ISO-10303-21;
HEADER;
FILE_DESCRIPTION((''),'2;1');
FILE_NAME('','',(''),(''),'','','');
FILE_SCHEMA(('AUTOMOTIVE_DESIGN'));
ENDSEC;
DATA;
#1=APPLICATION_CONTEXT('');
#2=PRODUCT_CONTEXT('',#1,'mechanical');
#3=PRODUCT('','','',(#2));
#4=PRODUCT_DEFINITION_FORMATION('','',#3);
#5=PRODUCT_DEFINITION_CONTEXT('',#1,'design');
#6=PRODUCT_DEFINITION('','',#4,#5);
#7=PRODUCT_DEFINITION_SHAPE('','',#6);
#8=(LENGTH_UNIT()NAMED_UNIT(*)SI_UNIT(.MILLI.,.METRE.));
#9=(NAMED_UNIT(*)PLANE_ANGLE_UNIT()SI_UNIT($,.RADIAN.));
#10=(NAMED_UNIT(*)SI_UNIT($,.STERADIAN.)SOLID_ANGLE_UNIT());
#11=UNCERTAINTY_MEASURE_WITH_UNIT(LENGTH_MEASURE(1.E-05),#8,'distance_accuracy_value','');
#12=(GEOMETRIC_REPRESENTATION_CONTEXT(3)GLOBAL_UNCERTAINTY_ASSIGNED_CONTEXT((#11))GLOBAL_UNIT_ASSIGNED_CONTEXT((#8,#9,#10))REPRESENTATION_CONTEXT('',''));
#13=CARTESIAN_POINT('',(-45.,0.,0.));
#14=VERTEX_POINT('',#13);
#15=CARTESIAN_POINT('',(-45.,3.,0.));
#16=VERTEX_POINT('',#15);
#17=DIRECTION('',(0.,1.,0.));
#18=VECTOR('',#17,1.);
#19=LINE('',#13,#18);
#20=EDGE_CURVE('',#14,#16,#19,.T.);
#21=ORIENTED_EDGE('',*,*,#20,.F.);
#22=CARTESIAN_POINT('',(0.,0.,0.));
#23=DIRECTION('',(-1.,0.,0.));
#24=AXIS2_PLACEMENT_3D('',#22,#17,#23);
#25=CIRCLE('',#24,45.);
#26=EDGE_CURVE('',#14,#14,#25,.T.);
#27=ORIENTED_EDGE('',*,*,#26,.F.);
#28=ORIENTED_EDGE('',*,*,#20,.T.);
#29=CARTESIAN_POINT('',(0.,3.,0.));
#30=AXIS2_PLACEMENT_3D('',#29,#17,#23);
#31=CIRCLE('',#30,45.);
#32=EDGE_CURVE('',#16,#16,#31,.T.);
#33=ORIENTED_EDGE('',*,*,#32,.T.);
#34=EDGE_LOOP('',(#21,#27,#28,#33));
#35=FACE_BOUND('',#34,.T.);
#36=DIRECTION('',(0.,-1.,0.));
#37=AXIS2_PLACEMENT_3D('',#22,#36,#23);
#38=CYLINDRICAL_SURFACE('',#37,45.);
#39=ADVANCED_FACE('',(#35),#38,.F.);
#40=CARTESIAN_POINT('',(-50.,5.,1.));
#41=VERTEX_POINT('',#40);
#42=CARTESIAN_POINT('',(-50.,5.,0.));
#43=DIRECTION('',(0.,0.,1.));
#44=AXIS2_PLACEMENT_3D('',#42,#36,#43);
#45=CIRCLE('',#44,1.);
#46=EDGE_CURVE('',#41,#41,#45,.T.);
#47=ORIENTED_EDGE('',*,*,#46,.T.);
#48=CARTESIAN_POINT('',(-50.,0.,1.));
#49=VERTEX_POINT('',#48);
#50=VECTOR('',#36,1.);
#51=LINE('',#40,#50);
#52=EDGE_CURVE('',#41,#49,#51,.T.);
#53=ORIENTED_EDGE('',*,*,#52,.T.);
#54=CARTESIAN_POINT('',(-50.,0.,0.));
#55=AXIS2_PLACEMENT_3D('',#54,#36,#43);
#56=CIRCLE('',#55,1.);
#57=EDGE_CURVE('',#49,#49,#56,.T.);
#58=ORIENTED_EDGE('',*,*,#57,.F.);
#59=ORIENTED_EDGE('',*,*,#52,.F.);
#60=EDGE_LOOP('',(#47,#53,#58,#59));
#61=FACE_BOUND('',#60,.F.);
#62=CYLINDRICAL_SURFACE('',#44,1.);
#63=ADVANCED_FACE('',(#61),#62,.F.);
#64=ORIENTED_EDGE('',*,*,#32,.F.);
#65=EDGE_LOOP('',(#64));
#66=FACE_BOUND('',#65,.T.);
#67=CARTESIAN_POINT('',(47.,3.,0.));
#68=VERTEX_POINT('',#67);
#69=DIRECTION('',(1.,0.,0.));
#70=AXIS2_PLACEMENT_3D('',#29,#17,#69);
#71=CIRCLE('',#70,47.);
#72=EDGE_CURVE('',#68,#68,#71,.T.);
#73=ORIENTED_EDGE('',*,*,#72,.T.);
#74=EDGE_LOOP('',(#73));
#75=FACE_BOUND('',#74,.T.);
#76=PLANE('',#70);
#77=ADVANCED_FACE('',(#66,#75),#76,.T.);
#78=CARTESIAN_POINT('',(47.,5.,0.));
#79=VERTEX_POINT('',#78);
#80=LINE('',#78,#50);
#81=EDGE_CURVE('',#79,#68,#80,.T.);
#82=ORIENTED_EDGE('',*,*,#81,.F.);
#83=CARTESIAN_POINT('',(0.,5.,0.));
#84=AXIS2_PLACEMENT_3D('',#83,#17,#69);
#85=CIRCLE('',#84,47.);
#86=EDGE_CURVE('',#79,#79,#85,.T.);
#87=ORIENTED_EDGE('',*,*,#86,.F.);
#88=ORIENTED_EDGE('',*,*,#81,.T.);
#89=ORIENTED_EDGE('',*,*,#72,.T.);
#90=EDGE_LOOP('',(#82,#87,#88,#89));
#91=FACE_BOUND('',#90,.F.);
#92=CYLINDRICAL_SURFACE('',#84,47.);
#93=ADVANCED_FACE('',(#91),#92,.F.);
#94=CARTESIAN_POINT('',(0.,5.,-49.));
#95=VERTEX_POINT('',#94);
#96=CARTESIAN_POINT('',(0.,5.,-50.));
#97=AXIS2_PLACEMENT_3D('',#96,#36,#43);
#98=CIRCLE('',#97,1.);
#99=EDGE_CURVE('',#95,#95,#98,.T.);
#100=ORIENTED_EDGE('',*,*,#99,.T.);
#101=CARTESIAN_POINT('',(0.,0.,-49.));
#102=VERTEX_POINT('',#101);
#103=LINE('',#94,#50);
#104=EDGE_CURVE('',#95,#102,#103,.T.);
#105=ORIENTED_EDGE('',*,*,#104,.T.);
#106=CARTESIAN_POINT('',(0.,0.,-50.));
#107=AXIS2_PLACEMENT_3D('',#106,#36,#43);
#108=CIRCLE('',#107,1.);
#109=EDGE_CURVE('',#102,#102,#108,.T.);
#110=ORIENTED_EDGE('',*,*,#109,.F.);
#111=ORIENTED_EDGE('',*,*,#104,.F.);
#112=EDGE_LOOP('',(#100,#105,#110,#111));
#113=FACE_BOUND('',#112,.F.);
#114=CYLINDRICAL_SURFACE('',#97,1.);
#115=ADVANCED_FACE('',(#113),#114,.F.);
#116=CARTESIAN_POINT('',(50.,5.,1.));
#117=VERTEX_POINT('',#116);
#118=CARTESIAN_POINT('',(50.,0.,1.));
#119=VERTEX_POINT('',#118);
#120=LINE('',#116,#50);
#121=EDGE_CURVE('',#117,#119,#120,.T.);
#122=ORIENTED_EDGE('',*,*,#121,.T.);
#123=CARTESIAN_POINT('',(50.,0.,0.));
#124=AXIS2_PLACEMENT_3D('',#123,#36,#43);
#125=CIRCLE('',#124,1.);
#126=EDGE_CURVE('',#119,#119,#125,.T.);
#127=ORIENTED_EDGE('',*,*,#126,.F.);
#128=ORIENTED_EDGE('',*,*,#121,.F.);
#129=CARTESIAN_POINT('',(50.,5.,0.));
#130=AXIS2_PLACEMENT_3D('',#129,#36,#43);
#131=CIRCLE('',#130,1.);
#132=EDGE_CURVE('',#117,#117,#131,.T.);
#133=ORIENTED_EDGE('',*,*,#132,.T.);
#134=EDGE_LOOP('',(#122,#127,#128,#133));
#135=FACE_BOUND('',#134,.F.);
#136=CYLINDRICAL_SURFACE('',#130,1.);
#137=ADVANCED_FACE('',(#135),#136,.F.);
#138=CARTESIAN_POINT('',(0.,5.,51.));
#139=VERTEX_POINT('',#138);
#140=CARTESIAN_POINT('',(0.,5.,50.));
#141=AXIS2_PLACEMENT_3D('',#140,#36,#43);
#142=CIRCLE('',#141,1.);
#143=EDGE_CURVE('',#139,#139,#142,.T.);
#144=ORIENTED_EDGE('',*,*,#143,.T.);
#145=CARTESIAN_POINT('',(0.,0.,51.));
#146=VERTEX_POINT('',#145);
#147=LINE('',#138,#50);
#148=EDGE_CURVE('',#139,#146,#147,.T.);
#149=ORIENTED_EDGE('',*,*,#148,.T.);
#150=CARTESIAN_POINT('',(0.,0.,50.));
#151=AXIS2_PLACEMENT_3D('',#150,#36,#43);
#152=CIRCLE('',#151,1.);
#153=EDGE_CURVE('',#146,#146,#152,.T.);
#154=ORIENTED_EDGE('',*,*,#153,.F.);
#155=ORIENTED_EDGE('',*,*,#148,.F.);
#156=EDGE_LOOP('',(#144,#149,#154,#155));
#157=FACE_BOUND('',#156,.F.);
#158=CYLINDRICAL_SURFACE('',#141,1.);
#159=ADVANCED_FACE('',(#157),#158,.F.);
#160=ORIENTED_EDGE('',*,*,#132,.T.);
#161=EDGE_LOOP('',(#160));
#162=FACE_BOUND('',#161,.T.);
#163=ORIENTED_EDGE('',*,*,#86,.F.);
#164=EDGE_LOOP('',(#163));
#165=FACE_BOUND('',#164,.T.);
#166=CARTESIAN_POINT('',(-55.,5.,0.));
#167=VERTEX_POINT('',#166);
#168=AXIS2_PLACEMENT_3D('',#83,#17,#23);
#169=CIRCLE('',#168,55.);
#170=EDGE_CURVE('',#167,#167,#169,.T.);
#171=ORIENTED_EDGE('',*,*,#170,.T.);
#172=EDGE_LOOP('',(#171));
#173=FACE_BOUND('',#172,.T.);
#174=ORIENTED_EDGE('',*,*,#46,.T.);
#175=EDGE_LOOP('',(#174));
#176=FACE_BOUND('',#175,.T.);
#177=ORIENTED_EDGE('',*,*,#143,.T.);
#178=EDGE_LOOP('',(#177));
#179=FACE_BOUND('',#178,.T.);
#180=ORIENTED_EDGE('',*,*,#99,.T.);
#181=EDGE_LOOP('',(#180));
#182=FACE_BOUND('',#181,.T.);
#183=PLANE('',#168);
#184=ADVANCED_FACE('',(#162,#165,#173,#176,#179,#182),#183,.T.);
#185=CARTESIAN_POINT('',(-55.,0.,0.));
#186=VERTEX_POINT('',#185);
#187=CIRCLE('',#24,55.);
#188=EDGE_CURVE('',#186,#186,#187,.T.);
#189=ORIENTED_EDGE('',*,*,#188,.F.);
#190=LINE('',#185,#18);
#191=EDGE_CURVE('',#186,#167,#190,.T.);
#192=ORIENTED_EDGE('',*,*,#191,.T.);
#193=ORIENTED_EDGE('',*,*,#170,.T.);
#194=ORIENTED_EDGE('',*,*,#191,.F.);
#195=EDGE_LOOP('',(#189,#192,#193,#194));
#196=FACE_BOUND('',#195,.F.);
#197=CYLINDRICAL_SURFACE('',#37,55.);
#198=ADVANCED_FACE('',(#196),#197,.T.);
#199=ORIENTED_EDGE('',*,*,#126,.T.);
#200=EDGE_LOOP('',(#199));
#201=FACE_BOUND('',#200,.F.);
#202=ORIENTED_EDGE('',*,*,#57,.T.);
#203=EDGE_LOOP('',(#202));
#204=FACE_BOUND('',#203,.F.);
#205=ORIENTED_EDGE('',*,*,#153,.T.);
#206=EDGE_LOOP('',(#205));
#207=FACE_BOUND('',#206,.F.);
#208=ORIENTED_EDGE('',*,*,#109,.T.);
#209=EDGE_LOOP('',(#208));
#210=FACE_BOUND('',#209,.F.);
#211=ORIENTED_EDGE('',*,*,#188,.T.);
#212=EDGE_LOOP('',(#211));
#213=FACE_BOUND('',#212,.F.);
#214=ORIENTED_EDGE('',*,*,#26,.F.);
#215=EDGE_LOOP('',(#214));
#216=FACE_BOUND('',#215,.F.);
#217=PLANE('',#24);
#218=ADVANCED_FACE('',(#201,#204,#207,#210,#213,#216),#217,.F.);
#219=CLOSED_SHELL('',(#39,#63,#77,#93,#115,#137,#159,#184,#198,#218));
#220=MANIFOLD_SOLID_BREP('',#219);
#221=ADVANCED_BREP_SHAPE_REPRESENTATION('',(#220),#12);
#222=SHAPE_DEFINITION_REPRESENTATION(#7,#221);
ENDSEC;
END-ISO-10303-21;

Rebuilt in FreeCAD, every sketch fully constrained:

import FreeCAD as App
import Part
import Sketcher

V = App.Vector

doc = App.newDocument("Part")
body = doc.addObject("PartDesign::Body", "Body")

# Sketch on XZ plane
sketch1 = body.newObject("Sketcher::SketchObject", "Sketch")
sketch1.AttachmentSupport = (doc.getObject("XZ_Plane"), [""])
sketch1.MapMode = "FlatFace"
sketch1.addGeometry(Part.Circle(V(0, 0, 0), V(0, 0, 1), 55), False)
sketch1.addGeometry(Part.Circle(V(0, 0, 0), V(0, 0, 1), 45), False)
sketch1.addConstraint(Sketcher.Constraint("Coincident", 0, 3, -1, 1))
sketch1.addConstraint(Sketcher.Constraint("Coincident", 1, 3, -1, 1))
sketch1.addConstraint(Sketcher.Constraint("Diameter", 0, 110.0))
sketch1.addConstraint(Sketcher.Constraint("Diameter", 1, 90.0))
pad1 = body.newObject("PartDesign::Pad", "Pad")
pad1.Profile = sketch1
pad1.Length = 5
pad1.Reversed = True

# Sketch on XZ plane
sketch2 = body.newObject("Sketcher::SketchObject", "Sketch001")
sketch2.AttachmentSupport = (doc.getObject("XZ_Plane"), [""])
sketch2.MapMode = "FlatFace"
sketch2.AttachmentOffset = App.Placement(V(0, 0, -5), App.Rotation())
sketch2.addGeometry(Part.Circle(V(0, 0, 0), V(0, 0, 1), 47), False)
sketch2.addGeometry(Part.Circle(V(0, 0, 0), V(0, 0, 1), 45), False)
sketch2.addConstraint(Sketcher.Constraint("Coincident", 0, 3, -1, 1))
sketch2.addConstraint(Sketcher.Constraint("Coincident", 1, 3, -1, 1))
sketch2.addConstraint(Sketcher.Constraint("Diameter", 0, 94.0))
sketch2.addConstraint(Sketcher.Constraint("Diameter", 1, 90.0))
pocket1 = body.newObject("PartDesign::Pocket", "Pocket")
pocket1.Profile = sketch2
pocket1.Length = 2
pocket1.Reversed = True

# Sketch on XZ plane
sketch3 = body.newObject("Sketcher::SketchObject", "Sketch002")
sketch3.AttachmentSupport = (doc.getObject("XZ_Plane"), [""])
sketch3.MapMode = "FlatFace"
sketch3.AttachmentOffset = App.Placement(V(0, 0, -5), App.Rotation())
sketch3.addGeometry(Part.Circle(V(0, 50, 0), V(0, 0, 1), 1), False)
sketch3.addConstraint(Sketcher.Constraint("PointOnObject", 0, 3, -2))
sketch3.addConstraint(Sketcher.Constraint("Diameter", 0, 2.0))
sketch3.addConstraint(Sketcher.Constraint("DistanceY", -1, 1, 0, 3, 50.0))
doc.recompute()
hole = body.newObject("PartDesign::Hole", "Hole")
hole.Profile = sketch3
hole.ThreadType = "None"
hole.Diameter = 2
hole.DepthType = "ThroughAll"
hole.Reversed = True

# Sketch on XZ plane
sketch4 = body.newObject("Sketcher::SketchObject", "Sketch003")
sketch4.AttachmentSupport = (doc.getObject("XZ_Plane"), [""])
sketch4.MapMode = "FlatFace"
sketch4.AttachmentOffset = App.Placement(V(0, 0, -5), App.Rotation())
sketch4.addGeometry(Part.Circle(V(-50, 0, 0), V(0, 0, 1), 1), False)
sketch4.addConstraint(Sketcher.Constraint("PointOnObject", 0, 3, -1))
sketch4.addConstraint(Sketcher.Constraint("Diameter", 0, 2.0))
sketch4.addConstraint(Sketcher.Constraint("DistanceX", 0, 3, -1, 1, 50.0))
doc.recompute()
hole2 = body.newObject("PartDesign::Hole", "Hole001")
hole2.Profile = sketch4
hole2.ThreadType = "None"
hole2.Diameter = 2
hole2.DepthType = "ThroughAll"
hole2.Reversed = True

# Sketch on XZ plane
sketch5 = body.newObject("Sketcher::SketchObject", "Sketch004")
sketch5.AttachmentSupport = (doc.getObject("XZ_Plane"), [""])
sketch5.MapMode = "FlatFace"
sketch5.AttachmentOffset = App.Placement(V(0, 0, -5), App.Rotation())
sketch5.addGeometry(Part.Circle(V(0, -50, 0), V(0, 0, 1), 1), False)
sketch5.addConstraint(Sketcher.Constraint("PointOnObject", 0, 3, -2))
sketch5.addConstraint(Sketcher.Constraint("Diameter", 0, 2.0))
sketch5.addConstraint(Sketcher.Constraint("DistanceY", 0, 3, -1, 1, 50.0))
doc.recompute()
hole3 = body.newObject("PartDesign::Hole", "Hole002")
hole3.Profile = sketch5
hole3.ThreadType = "None"
hole3.Diameter = 2
hole3.DepthType = "ThroughAll"
hole3.Reversed = True

# Sketch on XZ plane
sketch6 = body.newObject("Sketcher::SketchObject", "Sketch005")
sketch6.AttachmentSupport = (doc.getObject("XZ_Plane"), [""])
sketch6.MapMode = "FlatFace"
sketch6.AttachmentOffset = App.Placement(V(0, 0, -5), App.Rotation())
sketch6.addGeometry(Part.Circle(V(50, 0, 0), V(0, 0, 1), 1), False)
sketch6.addConstraint(Sketcher.Constraint("PointOnObject", 0, 3, -1))
sketch6.addConstraint(Sketcher.Constraint("Diameter", 0, 2.0))
sketch6.addConstraint(Sketcher.Constraint("DistanceX", -1, 1, 0, 3, 50.0))
doc.recompute()
hole4 = body.newObject("PartDesign::Hole", "Hole003")
hole4.Profile = sketch6
hole4.ThreadType = "None"
hole4.Diameter = 2
hole4.DepthType = "ThroughAll"
hole4.Reversed = True

doc.recompute()
